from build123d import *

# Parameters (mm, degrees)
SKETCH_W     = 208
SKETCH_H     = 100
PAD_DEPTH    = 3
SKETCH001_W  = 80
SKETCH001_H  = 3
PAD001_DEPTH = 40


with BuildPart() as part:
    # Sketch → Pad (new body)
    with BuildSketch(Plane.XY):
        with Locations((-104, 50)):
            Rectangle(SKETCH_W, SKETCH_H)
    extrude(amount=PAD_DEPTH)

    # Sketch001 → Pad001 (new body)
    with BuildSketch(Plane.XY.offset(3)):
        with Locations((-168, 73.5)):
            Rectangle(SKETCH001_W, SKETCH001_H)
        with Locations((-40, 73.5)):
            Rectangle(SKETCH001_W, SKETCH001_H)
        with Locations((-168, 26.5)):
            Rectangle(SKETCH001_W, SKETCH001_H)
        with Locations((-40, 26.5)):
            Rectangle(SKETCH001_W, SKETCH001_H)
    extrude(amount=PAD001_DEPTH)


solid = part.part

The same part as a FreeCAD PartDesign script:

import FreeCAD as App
import Part
import Sketcher
Q = App.Units.Quantity

doc = App.newDocument("Part")
body = doc.addObject("PartDesign::Body", "Body")

# Sketch on XY plane
sketch1 = doc.addObject("Sketcher::SketchObject", "Sketch")
body.addObject(sketch1)
sketch1.AttachmentSupport = (doc.XY_Plane, [""])
sketch1.MapMode = "FlatFace"
sketch1.addGeometry(Part.LineSegment(App.Vector(-208, 100, 0), App.Vector(-208, 0, 0)), False)
sketch1.addGeometry(Part.LineSegment(App.Vector(-208, 0, 0), App.Vector(0, 0, 0)), False)
sketch1.addGeometry(Part.LineSegment(App.Vector(0, 0, 0), App.Vector(0, 100, 0)), False)
sketch1.addGeometry(Part.LineSegment(App.Vector(0, 100, 0), App.Vector(-208, 100, 0)), False)
sketch1.addConstraint(Sketcher.Constraint("Coincident", 0, 2, 1, 1))
sketch1.addConstraint(Sketcher.Constraint("Coincident", 1, 2, 2, 1))
sketch1.addConstraint(Sketcher.Constraint("Coincident", 2, 2, 3, 1))
sketch1.addConstraint(Sketcher.Constraint("Coincident", 3, 2, 0, 1))
sketch1.addConstraint(Sketcher.Constraint("Vertical", 0))
sketch1.addConstraint(Sketcher.Constraint("Horizontal", 1))
sketch1.addConstraint(Sketcher.Constraint("Vertical", 2))
sketch1.addConstraint(Sketcher.Constraint("Horizontal", 3))
sketch1.addConstraint(Sketcher.Constraint("Coincident", 1, 2, -1, 1))
sketch1.addConstraint(Sketcher.Constraint("DistanceX", 1, 1, 1, 2, Q("208 mm")))
sketch1.addConstraint(Sketcher.Constraint("DistanceY", 0, 2, 0, 1, Q("100 mm")))
pad1 = doc.addObject("PartDesign::Pad", "Pad")
body.addObject(pad1)
pad1.Profile = sketch1
pad1.Length = 3

# Sketch on XY plane
sketch2 = doc.addObject("Sketcher::SketchObject", "Sketch001")
body.addObject(sketch2)
sketch2.AttachmentSupport = (doc.XY_Plane, [""])
sketch2.MapMode = "FlatFace"
sketch2.AttachmentOffset = App.Placement(App.Vector(0, 0, 3), App.Rotation())
sketch2.addGeometry(Part.LineSegment(App.Vector(-208, 75, 0), App.Vector(-208, 72, 0)), False)
sketch2.addGeometry(Part.LineSegment(App.Vector(-208, 72, 0), App.Vector(-128, 72, 0)), False)
sketch2.addGeometry(Part.LineSegment(App.Vector(-128, 72, 0), App.Vector(-128, 75, 0)), False)
sketch2.addGeometry(Part.LineSegment(App.Vector(-128, 75, 0), App.Vector(-208, 75, 0)), False)
sketch2.addGeometry(Part.LineSegment(App.Vector(-80, 75, 0), App.Vector(-80, 72, 0)), False)
sketch2.addGeometry(Part.LineSegment(App.Vector(-80, 72, 0), App.Vector(0, 72, 0)), False)
sketch2.addGeometry(Part.LineSegment(App.Vector(0, 72, 0), App.Vector(0, 75, 0)), False)
sketch2.addGeometry(Part.LineSegment(App.Vector(0, 75, 0), App.Vector(-80, 75, 0)), False)
sketch2.addGeometry(Part.LineSegment(App.Vector(-208, 28, 0), App.Vector(-208, 25, 0)), False)
sketch2.addGeometry(Part.LineSegment(App.Vector(-208, 25, 0), App.Vector(-128, 25, 0)), False)
sketch2.addGeometry(Part.LineSegment(App.Vector(-128, 25, 0), App.Vector(-128, 28, 0)), False)
sketch2.addGeometry(Part.LineSegment(App.Vector(-128, 28, 0), App.Vector(-208, 28, 0)), False)
sketch2.addGeometry(Part.LineSegment(App.Vector(-80, 28, 0), App.Vector(-80, 25, 0)), False)
sketch2.addGeometry(Part.LineSegment(App.Vector(-80, 25, 0), App.Vector(0, 25, 0)), False)
sketch2.addGeometry(Part.LineSegment(App.Vector(0, 25, 0), App.Vector(0, 28, 0)), False)
sketch2.addGeometry(Part.LineSegment(App.Vector(0, 28, 0), App.Vector(-80, 28, 0)), False)
sketch2.addConstraint(Sketcher.Constraint("Coincident", 0, 2, 1, 1))
sketch2.addConstraint(Sketcher.Constraint("Coincident", 1, 2, 2, 1))
sketch2.addConstraint(Sketcher.Constraint("Coincident", 2, 2, 3, 1))
sketch2.addConstraint(Sketcher.Constraint("Coincident", 3, 2, 0, 1))
sketch2.addConstraint(Sketcher.Constraint("Coincident", 4, 2, 5, 1))
sketch2.addConstraint(Sketcher.Constraint("Coincident", 5, 2, 6, 1))
sketch2.addConstraint(Sketcher.Constraint("Coincident", 6, 2, 7, 1))
sketch2.addConstraint(Sketcher.Constraint("Coincident", 7, 2, 4, 1))
sketch2.addConstraint(Sketcher.Constraint("Coincident", 8, 2, 9, 1))
sketch2.addConstraint(Sketcher.Constraint("Coincident", 9, 2, 10, 1))
sketch2.addConstraint(Sketcher.Constraint("Coincident", 10, 2, 11, 1))
sketch2.addConstraint(Sketcher.Constraint("Coincident", 11, 2, 8, 1))
sketch2.addConstraint(Sketcher.Constraint("Coincident", 12, 2, 13, 1))
sketch2.addConstraint(Sketcher.Constraint("Coincident", 13, 2, 14, 1))
sketch2.addConstraint(Sketcher.Constraint("Coincident", 14, 2, 15, 1))
sketch2.addConstraint(Sketcher.Constraint("Coincident", 15, 2, 12, 1))
sketch2.addConstraint(Sketcher.Constraint("Vertical", 0))
sketch2.addConstraint(Sketcher.Constraint("Horizontal", 1))
sketch2.addConstraint(Sketcher.Constraint("Vertical", 2))
sketch2.addConstraint(Sketcher.Constraint("Horizontal", 3))
sketch2.addConstraint(Sketcher.Constraint("Vertical", 4))
sketch2.addConstraint(Sketcher.Constraint("Horizontal", 5))
sketch2.addConstraint(Sketcher.Constraint("Vertical", 6))
sketch2.addConstraint(Sketcher.Constraint("Horizontal", 7))
sketch2.addConstraint(Sketcher.Constraint("Vertical", 8))
sketch2.addConstraint(Sketcher.Constraint("Horizontal", 9))
sketch2.addConstraint(Sketcher.Constraint("Vertical", 10))
sketch2.addConstraint(Sketcher.Constraint("Horizontal", 11))
sketch2.addConstraint(Sketcher.Constraint("Vertical", 12))
sketch2.addConstraint(Sketcher.Constraint("Horizontal", 13))
sketch2.addConstraint(Sketcher.Constraint("Vertical", 14))
sketch2.addConstraint(Sketcher.Constraint("Horizontal", 15))
sketch2.addConstraint(Sketcher.Constraint("PointOnObject", 5, 2, -2))
sketch2.addConstraint(Sketcher.Constraint("PointOnObject", 13, 2, -2))
sketch2.addConstraint(Sketcher.Constraint("Horizontal", 1, 2, 4, 2))
sketch2.addConstraint(Sketcher.Constraint("Horizontal", 3, 2, 6, 2))
sketch2.addConstraint(Sketcher.Constraint("Horizontal", 9, 2, 12, 2))
sketch2.addConstraint(Sketcher.Constraint("Horizontal", 11, 2, 14, 2))
sketch2.addConstraint(Sketcher.Constraint("Vertical", 3, 2, 8, 2))
sketch2.addConstraint(Sketcher.Constraint("Vertical", 2, 2, 9, 2))
sketch2.addConstraint(Sketcher.Constraint("Vertical", 7, 2, 12, 2))
sketch2.addConstraint(Sketcher.Constraint("Equal", 3, 5))
sketch2.addConstraint(Sketcher.Constraint("Equal", 6, 8))
sketch2.addConstraint(Sketcher.Constraint("DistanceX", 1, 1, 1, 2, Q("80 mm")))
sketch2.addConstraint(Sketcher.Constraint("DistanceY", 0, 2, 0, 1, Q("3 mm")))
sketch2.addConstraint(Sketcher.Constraint("DistanceX", 0, 2, -1, 1, Q("208 mm")))
sketch2.addConstraint(Sketcher.Constraint("DistanceY", -1, 1, 0, 2, Q("72 mm")))
sketch2.addConstraint(Sketcher.Constraint("DistanceY", -1, 1, 8, 2, Q("25 mm")))
pad2 = doc.addObject("PartDesign::Pad", "Pad001")
body.addObject(pad2)
pad2.Profile = sketch2
pad2.Length = 40

doc.recompute()
